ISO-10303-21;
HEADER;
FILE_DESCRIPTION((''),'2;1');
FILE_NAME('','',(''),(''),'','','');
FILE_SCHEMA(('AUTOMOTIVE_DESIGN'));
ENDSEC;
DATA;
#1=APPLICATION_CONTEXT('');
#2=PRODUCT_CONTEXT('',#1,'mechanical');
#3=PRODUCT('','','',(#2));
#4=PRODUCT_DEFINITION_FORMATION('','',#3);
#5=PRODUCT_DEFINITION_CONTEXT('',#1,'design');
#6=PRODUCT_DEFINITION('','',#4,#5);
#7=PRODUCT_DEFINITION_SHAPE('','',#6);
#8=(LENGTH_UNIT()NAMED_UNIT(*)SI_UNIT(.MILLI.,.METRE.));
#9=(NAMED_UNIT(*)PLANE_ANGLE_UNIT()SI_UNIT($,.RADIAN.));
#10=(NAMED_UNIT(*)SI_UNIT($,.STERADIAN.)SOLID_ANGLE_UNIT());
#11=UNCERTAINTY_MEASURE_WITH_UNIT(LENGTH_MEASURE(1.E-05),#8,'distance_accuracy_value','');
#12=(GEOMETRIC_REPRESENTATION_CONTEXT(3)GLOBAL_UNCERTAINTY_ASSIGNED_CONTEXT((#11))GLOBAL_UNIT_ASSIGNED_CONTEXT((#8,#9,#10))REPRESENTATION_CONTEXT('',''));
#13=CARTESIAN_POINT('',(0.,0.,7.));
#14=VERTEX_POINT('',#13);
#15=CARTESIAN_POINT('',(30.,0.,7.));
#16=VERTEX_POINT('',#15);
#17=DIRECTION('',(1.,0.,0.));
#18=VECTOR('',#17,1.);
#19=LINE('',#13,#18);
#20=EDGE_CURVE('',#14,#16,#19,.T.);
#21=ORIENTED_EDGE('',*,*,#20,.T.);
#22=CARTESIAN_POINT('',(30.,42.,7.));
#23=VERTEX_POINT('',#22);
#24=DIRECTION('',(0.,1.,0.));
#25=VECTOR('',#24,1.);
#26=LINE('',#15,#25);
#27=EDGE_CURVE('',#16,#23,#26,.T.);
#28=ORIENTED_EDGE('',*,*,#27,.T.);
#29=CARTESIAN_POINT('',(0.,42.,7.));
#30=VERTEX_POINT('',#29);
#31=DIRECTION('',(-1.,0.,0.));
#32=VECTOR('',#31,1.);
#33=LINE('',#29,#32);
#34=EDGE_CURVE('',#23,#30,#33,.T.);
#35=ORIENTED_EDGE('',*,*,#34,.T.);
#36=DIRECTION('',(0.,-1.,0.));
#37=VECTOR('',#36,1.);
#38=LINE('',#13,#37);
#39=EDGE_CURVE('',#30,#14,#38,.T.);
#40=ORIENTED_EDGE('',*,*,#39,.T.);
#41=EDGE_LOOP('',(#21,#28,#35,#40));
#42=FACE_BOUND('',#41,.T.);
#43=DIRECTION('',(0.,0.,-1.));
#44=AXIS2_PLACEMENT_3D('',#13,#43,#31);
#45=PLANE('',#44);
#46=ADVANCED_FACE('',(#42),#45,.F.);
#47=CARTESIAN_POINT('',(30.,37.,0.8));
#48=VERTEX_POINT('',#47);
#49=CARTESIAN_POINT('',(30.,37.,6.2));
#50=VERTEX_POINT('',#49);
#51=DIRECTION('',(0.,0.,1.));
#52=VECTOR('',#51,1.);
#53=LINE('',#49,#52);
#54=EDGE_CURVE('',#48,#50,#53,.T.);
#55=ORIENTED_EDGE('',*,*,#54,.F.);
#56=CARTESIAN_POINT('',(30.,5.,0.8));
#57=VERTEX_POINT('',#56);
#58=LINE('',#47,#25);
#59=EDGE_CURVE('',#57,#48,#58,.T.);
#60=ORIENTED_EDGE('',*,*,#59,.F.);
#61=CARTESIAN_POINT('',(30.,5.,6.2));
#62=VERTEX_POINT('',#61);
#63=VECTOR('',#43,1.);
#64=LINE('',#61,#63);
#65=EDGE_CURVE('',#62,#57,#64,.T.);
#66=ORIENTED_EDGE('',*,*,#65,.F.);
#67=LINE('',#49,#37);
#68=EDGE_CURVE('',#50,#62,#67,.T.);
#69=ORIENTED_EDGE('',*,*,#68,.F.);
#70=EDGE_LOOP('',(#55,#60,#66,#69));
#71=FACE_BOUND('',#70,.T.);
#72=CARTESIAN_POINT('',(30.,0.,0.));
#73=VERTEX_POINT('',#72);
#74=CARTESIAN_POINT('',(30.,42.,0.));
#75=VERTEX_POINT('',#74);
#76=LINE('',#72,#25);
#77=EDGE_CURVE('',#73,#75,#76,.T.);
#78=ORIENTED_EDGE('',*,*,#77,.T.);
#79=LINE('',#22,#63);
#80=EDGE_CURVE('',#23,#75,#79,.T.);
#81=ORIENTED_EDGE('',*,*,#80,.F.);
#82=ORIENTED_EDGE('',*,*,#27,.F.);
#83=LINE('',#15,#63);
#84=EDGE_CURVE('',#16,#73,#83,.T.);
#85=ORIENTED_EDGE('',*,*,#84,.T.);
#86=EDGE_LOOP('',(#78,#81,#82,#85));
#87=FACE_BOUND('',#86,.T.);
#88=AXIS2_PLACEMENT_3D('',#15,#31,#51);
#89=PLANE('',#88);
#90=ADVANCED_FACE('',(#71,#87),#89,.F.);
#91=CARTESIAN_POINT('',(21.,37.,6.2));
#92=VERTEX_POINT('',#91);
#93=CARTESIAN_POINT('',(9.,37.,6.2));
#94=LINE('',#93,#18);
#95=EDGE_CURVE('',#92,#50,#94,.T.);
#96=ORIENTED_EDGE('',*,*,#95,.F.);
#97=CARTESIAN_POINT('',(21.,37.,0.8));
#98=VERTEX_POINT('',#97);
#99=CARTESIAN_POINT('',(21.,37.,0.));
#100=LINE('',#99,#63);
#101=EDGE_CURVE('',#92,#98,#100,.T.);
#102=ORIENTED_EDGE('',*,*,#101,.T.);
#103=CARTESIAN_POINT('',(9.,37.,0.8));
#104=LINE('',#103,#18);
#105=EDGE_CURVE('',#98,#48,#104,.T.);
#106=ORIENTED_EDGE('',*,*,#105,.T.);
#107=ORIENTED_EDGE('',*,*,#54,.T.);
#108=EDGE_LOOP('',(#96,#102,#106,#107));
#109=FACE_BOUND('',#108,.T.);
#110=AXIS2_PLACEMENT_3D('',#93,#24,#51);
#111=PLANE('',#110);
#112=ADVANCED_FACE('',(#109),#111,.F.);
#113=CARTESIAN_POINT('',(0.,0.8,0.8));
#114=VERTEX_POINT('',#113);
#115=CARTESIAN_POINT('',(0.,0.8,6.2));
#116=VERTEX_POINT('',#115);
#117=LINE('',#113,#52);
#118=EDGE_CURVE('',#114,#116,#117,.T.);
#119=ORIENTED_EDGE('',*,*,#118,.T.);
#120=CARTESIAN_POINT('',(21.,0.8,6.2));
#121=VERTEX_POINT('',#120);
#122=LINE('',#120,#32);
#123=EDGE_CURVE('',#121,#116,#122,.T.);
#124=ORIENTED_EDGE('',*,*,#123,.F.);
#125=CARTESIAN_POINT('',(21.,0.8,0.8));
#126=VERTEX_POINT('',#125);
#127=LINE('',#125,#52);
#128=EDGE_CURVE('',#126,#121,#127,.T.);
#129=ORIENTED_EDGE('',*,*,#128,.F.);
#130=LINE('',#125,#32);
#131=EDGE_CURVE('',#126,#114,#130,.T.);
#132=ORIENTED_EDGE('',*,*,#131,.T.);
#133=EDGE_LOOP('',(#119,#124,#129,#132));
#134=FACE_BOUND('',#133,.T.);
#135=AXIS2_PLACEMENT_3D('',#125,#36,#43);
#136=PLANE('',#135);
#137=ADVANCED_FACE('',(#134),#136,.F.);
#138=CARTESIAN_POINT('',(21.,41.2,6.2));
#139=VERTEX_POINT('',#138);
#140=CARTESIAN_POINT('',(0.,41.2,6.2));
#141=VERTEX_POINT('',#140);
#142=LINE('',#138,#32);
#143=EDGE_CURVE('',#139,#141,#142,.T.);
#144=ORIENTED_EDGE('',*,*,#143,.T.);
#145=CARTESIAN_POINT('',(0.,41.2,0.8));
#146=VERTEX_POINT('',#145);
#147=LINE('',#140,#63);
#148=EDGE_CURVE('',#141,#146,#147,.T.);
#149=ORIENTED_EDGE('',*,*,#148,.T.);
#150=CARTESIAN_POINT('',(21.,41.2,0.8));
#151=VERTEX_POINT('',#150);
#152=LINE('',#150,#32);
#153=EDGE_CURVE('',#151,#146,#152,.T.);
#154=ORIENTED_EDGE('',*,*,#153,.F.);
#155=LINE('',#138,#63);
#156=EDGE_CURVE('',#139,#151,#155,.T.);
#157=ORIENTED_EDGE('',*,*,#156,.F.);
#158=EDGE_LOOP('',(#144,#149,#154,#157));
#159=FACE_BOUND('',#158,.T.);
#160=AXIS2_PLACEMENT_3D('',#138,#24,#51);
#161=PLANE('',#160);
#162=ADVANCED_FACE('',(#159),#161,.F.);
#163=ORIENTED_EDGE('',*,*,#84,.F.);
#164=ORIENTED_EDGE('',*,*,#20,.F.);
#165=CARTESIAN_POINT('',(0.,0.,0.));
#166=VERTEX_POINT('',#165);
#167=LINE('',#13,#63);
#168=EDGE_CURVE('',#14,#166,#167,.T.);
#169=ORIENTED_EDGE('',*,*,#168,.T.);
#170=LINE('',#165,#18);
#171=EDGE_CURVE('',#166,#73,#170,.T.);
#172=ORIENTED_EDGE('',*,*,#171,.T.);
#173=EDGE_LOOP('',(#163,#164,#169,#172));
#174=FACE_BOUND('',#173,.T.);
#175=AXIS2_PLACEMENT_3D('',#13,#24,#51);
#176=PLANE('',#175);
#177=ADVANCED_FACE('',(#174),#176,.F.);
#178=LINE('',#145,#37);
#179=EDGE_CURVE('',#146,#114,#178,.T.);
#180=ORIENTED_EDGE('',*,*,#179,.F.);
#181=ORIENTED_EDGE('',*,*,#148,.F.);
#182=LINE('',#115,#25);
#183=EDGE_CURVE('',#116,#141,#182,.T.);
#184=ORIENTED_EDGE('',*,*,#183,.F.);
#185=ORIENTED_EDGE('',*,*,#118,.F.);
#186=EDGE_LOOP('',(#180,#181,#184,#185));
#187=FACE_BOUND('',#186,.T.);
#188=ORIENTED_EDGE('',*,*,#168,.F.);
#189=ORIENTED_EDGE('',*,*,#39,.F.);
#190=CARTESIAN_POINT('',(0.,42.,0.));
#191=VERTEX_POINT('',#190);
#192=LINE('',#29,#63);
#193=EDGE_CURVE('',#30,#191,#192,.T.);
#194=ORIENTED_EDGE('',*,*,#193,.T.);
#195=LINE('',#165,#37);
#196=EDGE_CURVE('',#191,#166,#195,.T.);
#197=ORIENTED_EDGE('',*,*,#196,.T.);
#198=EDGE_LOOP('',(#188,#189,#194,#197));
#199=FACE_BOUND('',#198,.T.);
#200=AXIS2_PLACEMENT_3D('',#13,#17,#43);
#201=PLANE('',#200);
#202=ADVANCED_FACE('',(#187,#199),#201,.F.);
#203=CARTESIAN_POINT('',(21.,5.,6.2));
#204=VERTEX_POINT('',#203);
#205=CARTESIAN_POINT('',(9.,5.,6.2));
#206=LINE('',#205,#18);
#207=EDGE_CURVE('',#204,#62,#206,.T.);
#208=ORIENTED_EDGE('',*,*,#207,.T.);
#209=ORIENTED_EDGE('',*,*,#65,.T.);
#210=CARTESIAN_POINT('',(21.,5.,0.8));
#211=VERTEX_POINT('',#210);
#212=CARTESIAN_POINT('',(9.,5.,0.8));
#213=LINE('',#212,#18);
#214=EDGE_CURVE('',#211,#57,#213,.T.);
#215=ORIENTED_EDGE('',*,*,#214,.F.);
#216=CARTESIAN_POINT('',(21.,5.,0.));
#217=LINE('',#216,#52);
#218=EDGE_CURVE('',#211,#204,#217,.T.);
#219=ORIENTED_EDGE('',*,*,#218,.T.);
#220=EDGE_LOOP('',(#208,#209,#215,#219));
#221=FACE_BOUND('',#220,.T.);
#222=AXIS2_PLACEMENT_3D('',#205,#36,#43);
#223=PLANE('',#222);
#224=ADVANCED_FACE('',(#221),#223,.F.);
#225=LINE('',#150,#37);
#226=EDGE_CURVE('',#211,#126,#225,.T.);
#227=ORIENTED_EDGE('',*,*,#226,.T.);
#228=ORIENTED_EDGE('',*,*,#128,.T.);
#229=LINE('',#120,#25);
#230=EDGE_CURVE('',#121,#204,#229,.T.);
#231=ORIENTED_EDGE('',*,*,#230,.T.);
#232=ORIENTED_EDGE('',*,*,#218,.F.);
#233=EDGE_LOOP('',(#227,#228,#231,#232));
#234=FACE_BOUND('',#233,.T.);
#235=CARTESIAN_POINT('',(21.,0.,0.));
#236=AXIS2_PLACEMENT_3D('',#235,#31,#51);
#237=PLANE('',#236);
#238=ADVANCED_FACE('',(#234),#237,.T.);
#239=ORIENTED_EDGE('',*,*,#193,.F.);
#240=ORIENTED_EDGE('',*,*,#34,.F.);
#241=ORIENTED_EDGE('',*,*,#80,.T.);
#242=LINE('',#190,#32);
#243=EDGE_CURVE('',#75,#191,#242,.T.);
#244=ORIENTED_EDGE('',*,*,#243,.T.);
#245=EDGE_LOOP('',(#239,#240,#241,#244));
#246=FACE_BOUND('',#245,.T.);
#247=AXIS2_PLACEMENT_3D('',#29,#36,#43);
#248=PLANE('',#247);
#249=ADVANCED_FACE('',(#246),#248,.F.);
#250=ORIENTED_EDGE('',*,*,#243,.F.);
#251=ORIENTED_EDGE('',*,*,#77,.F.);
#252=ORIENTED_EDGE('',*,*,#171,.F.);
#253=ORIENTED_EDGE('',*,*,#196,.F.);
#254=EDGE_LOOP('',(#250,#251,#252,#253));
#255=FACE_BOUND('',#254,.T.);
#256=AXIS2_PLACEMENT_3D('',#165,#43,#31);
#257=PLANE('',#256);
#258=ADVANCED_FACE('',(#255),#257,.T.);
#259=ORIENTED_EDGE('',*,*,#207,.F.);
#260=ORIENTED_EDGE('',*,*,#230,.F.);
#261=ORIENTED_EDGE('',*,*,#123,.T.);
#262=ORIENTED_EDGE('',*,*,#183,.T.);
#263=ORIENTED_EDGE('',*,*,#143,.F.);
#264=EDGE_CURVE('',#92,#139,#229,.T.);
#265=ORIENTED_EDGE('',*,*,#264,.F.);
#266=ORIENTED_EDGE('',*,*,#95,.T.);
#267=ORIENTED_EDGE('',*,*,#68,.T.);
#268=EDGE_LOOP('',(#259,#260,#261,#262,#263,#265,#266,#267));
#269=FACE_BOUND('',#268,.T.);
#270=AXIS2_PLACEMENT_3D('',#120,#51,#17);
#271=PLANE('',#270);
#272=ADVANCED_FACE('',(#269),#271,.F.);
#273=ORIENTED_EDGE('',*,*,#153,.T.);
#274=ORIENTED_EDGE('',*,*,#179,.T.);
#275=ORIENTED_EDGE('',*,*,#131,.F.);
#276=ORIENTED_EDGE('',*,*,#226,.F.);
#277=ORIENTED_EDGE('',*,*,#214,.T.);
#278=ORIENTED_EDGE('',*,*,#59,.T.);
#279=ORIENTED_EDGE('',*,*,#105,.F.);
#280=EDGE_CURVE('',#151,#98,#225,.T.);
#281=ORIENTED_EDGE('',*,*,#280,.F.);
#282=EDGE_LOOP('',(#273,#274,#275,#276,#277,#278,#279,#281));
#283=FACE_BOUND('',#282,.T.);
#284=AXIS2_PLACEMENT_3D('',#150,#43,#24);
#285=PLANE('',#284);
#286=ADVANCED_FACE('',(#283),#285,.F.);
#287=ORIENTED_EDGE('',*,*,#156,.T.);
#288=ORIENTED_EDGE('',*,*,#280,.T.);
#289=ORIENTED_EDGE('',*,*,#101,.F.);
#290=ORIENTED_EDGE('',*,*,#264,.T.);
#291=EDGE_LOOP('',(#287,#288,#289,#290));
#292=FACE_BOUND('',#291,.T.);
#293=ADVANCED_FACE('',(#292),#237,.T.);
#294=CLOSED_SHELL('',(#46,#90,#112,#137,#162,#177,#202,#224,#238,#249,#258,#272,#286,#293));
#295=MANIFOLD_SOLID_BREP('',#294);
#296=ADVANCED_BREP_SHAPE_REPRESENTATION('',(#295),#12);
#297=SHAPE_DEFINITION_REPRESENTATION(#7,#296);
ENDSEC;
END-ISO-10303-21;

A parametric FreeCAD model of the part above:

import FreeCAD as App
import Part
import Sketcher
from FreeCAD import Vector
Q = App.Units.Quantity


def add_polygon(sketch, points):
    """Adds a closed chain of lines whose ends are joined by coincident constraints."""
    first, n = sketch.GeometryCount, len(points)
    for a, b in zip(points, points[1:] + points[:1]):
        sketch.addGeometry(Part.LineSegment(App.Vector(*a, 0), App.Vector(*b, 0)), False)
    for i in range(n):
        sketch.addConstraint(Sketcher.Constraint("Coincident", first + i, 2, first + (i + 1) % n, 1))

doc = App.newDocument("Part")
params = doc.addObject("Spreadsheet::Sheet", "Params")
for row, (alias, value) in enumerate([
    ("sketch1_width", "30 mm"),
    ("sketch1_height", "42 mm"),
    ("pad1_length", "7 mm"),
    ("sketch2_width", "40.4 mm"),
    ("sketch2_height", "5.4 mm"),
    ("pocket1_length", "21 mm"),
    ("sketch3_width", "32 mm"),
    ("sketch3_height", "5.4 mm"),
    ("pocket2_length", "21 mm"),
], start=1):
    params.set(f"A{row}", alias)
    params.set(f"B{row}", "=" + value)
    params.setAlias(f"B{row}", alias)

body = doc.addObject("PartDesign::Body", "Body")

sketch1 = body.newObject("Sketcher::SketchObject", "Sketch")
sketch1.AttachmentSupport = (doc.getObject("XY_Plane"), [""])
sketch1.MapMode = "FlatFace"
add_polygon(sketch1, [(0, 42), (0, 0), (30, 0), (30, 42)])
sketch1.addConstraint([
    Sketcher.Constraint("Vertical", 0),
    Sketcher.Constraint("Horizontal", 1),
    Sketcher.Constraint("Vertical", 2),
    Sketcher.Constraint("Horizontal", 3),
    Sketcher.Constraint("Coincident", 0, 2, -1, 1),
    Sketcher.Constraint("DistanceX", 1, 1, 1, 2, Q("30 mm")),
    Sketcher.Constraint("DistanceY", 0, 2, 0, 1, Q("42 mm")),
])
sketch1.setExpression("Constraints[9]", "Params.sketch1_width")
sketch1.setExpression("Constraints[10]", "Params.sketch1_height")
pad1 = body.newObject("PartDesign::Pad", "Pad")
pad1.Profile = sketch1
pad1.setExpression("Length", "Params.pad1_length")

sketch2 = body.newObject("Sketcher::SketchObject", "Sketch001")
sketch2.AttachmentSupport = (doc.getObject("YZ_Plane"), [""])
sketch2.MapMode = "FlatFace"
add_polygon(sketch2, [(41.2, 0.8), (0.8, 0.8), (0.8, 6.2), (41.2, 6.2)])
sketch2.addConstraint([
    Sketcher.Constraint("Horizontal", 0),
    Sketcher.Constraint("Vertical", 1),
    Sketcher.Constraint("Horizontal", 2),
    Sketcher.Constraint("Vertical", 3),
    Sketcher.Constraint("DistanceX", 0, 2, 0, 1, Q("40.4 mm")),
    Sketcher.Constraint("DistanceY", 1, 1, 1, 2, Q("5.4 mm")),
    Sketcher.Constraint("DistanceX", -1, 1, 0, 2, Q("0.8 mm")),
    Sketcher.Constraint("DistanceY", -1, 1, 0, 2, Q("0.8 mm")),
])
sketch2.setExpression("Constraints[8]", "Params.sketch2_width")
sketch2.setExpression("Constraints[9]", "Params.sketch2_height")
pocket1 = body.newObject("PartDesign::Pocket", "Pocket")
pocket1.Profile = sketch2
pocket1.setExpression("Length", "Params.pocket1_length")
pocket1.Reversed = True

sketch3 = body.newObject("Sketcher::SketchObject", "Sketch002")
sketch3.AttachmentSupport = (doc.getObject("YZ_Plane"), [""])
sketch3.MapMode = "FlatFace"
sketch3.AttachmentOffset = App.Placement(Vector(0, 0, 30), App.Rotation())
add_polygon(sketch3, [(37, 6.2), (5, 6.2), (5, 0.8), (37, 0.8)])
sketch3.addConstraint([
    Sketcher.Constraint("Horizontal", 0),
    Sketcher.Constraint("Vertical", 1),
    Sketcher.Constraint("Horizontal", 2),
    Sketcher.Constraint("Vertical", 3),
    Sketcher.Constraint("DistanceX", 0, 2, 0, 1, Q("32 mm")),
    Sketcher.Constraint("DistanceY", 1, 2, 1, 1, Q("5.4 mm")),
    Sketcher.Constraint("DistanceX", -1, 1, 0, 2, Q("5 mm")),
    Sketcher.Constraint("DistanceY", -1, 1, 0, 2, Q("6.2 mm")),
])
sketch3.setExpression("Constraints[8]", "Params.sketch3_width")
sketch3.setExpression("Constraints[9]", "Params.sketch3_height")
pocket2 = body.newObject("PartDesign::Pocket", "Pocket001")
pocket2.Profile = sketch3
pocket2.setExpression("Length", "Params.pocket2_length")

doc.recompute()
